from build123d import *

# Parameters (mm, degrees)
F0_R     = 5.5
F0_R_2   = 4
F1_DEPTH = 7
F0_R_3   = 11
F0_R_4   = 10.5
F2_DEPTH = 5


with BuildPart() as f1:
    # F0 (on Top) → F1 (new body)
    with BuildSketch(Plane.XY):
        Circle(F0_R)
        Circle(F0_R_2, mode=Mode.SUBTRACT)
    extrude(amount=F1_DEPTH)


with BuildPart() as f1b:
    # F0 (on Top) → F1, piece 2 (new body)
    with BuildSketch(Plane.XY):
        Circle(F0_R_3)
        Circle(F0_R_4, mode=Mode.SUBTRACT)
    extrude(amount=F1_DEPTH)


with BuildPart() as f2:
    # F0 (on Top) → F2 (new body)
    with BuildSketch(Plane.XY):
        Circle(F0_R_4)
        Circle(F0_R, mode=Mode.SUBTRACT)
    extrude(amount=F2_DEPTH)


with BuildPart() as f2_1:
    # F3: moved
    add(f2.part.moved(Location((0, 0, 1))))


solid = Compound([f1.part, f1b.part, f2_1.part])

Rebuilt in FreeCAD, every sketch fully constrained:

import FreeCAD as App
import Part
import Sketcher

V = App.Vector
Q = App.Units.Quantity

doc = App.newDocument("Part")
params = doc.addObject("Spreadsheet::Sheet", "Params")
for row, (alias, value) in enumerate([
    ("sketch1_diameter", "11 mm"),
    ("sketch1_diameter2", "8 mm"),
    ("pad1_length", "7 mm"),
    ("sketch2_diameter", "22 mm"),
    ("sketch2_diameter2", "21 mm"),
    ("pad2_length", "7 mm"),
    ("sketch3_diameter", "21 mm"),
    ("sketch3_diameter2", "11 mm"),
    ("pad3_length", "5 mm"),
], start=1):
    params.set(f"A{row}", alias)
    params.set(f"B{row}", "=" + value)
    params.setAlias(f"B{row}", alias)

body = doc.addObject("PartDesign::Body", "Body")

sketch1 = body.newObject("Sketcher::SketchObject", "Sketch")
sketch1.AttachmentSupport = (doc.getObject("XY_Plane"), [""])
sketch1.MapMode = "FlatFace"
sketch1.addGeometry([
    Part.Circle(V(0, 0, 0), V(0, 0, 1), 5.5),
    Part.Circle(V(0, 0, 0), V(0, 0, 1), 4),
], False)
sketch1.addConstraint([
    Sketcher.Constraint("Coincident", 0, 3, -1, 1),
    Sketcher.Constraint("Coincident", 1, 3, -1, 1),
    Sketcher.Constraint("Diameter", 0, Q("11 mm")),
    Sketcher.Constraint("Diameter", 1, Q("8 mm")),
])
sketch1.setExpression("Constraints[2]", "Params.sketch1_diameter")
sketch1.setExpression("Constraints[3]", "Params.sketch1_diameter2")
pad1 = body.newObject("PartDesign::Pad", "Pad")
pad1.Profile = sketch1
pad1.setExpression("Length", "Params.pad1_length")
body2 = doc.addObject("PartDesign::Body", "Body001")

sketch2 = body2.newObject("Sketcher::SketchObject", "Sketch001")
sketch2.AttachmentSupport = (doc.getObject("XY_Plane001"), [""])
sketch2.MapMode = "FlatFace"
sketch2.addGeometry([
    Part.Circle(V(0, 0, 0), V(0, 0, 1), 11),
    Part.Circle(V(0, 0, 0), V(0, 0, 1), 10),
], False)
sketch2.addConstraint([
    Sketcher.Constraint("Coincident", 0, 3, -1, 1),
    Sketcher.Constraint("Coincident", 1, 3, -1, 1),
    Sketcher.Constraint("Diameter", 0, Q("22 mm")),
    Sketcher.Constraint("Diameter", 1, Q("21 mm")),
])
sketch2.setExpression("Constraints[2]", "Params.sketch2_diameter")
sketch2.setExpression("Constraints[3]", "Params.sketch2_diameter2")
pad2 = body2.newObject("PartDesign::Pad", "Pad001")
pad2.Profile = sketch2
pad2.setExpression("Length", "Params.pad2_length")
body3 = doc.addObject("PartDesign::Body", "Body002")

sketch3 = body3.newObject("Sketcher::SketchObject", "Sketch002")
sketch3.AttachmentSupport = (doc.getObject("XY_Plane002"), [""])
sketch3.MapMode = "FlatFace"
sketch3.addGeometry([
    Part.Circle(V(0, 0, 0), V(0, 0, 1), 10),
    Part.Circle(V(0, 0, 0), V(0, 0, 1), 6),
], False)
sketch3.addConstraint([
    Sketcher.Constraint("Coincident", 0, 3, -1, 1),
    Sketcher.Constraint("Coincident", 1, 3, -1, 1),
    Sketcher.Constraint("Diameter", 0, Q("21 mm")),
    Sketcher.Constraint("Diameter", 1, Q("11 mm")),
])
sketch3.setExpression("Constraints[2]", "Params.sketch3_diameter")
sketch3.setExpression("Constraints[3]", "Params.sketch3_diameter2")
pad3 = body3.newObject("PartDesign::Pad", "Pad002")
pad3.Profile = sketch3
pad3.setExpression("Length", "Params.pad3_length")
body4 = doc.addObject("PartDesign::Body", "Body003")
doc.recompute()

body3.Placement = App.Placement(V(0, 0, 1), App.Rotation(V(0, 0, 1), 0))
boolean = body4.newObject("PartDesign::Boolean", "Boolean")
boolean.Type = "Fuse"
boolean.addObjects([body3])

doc.recompute()
